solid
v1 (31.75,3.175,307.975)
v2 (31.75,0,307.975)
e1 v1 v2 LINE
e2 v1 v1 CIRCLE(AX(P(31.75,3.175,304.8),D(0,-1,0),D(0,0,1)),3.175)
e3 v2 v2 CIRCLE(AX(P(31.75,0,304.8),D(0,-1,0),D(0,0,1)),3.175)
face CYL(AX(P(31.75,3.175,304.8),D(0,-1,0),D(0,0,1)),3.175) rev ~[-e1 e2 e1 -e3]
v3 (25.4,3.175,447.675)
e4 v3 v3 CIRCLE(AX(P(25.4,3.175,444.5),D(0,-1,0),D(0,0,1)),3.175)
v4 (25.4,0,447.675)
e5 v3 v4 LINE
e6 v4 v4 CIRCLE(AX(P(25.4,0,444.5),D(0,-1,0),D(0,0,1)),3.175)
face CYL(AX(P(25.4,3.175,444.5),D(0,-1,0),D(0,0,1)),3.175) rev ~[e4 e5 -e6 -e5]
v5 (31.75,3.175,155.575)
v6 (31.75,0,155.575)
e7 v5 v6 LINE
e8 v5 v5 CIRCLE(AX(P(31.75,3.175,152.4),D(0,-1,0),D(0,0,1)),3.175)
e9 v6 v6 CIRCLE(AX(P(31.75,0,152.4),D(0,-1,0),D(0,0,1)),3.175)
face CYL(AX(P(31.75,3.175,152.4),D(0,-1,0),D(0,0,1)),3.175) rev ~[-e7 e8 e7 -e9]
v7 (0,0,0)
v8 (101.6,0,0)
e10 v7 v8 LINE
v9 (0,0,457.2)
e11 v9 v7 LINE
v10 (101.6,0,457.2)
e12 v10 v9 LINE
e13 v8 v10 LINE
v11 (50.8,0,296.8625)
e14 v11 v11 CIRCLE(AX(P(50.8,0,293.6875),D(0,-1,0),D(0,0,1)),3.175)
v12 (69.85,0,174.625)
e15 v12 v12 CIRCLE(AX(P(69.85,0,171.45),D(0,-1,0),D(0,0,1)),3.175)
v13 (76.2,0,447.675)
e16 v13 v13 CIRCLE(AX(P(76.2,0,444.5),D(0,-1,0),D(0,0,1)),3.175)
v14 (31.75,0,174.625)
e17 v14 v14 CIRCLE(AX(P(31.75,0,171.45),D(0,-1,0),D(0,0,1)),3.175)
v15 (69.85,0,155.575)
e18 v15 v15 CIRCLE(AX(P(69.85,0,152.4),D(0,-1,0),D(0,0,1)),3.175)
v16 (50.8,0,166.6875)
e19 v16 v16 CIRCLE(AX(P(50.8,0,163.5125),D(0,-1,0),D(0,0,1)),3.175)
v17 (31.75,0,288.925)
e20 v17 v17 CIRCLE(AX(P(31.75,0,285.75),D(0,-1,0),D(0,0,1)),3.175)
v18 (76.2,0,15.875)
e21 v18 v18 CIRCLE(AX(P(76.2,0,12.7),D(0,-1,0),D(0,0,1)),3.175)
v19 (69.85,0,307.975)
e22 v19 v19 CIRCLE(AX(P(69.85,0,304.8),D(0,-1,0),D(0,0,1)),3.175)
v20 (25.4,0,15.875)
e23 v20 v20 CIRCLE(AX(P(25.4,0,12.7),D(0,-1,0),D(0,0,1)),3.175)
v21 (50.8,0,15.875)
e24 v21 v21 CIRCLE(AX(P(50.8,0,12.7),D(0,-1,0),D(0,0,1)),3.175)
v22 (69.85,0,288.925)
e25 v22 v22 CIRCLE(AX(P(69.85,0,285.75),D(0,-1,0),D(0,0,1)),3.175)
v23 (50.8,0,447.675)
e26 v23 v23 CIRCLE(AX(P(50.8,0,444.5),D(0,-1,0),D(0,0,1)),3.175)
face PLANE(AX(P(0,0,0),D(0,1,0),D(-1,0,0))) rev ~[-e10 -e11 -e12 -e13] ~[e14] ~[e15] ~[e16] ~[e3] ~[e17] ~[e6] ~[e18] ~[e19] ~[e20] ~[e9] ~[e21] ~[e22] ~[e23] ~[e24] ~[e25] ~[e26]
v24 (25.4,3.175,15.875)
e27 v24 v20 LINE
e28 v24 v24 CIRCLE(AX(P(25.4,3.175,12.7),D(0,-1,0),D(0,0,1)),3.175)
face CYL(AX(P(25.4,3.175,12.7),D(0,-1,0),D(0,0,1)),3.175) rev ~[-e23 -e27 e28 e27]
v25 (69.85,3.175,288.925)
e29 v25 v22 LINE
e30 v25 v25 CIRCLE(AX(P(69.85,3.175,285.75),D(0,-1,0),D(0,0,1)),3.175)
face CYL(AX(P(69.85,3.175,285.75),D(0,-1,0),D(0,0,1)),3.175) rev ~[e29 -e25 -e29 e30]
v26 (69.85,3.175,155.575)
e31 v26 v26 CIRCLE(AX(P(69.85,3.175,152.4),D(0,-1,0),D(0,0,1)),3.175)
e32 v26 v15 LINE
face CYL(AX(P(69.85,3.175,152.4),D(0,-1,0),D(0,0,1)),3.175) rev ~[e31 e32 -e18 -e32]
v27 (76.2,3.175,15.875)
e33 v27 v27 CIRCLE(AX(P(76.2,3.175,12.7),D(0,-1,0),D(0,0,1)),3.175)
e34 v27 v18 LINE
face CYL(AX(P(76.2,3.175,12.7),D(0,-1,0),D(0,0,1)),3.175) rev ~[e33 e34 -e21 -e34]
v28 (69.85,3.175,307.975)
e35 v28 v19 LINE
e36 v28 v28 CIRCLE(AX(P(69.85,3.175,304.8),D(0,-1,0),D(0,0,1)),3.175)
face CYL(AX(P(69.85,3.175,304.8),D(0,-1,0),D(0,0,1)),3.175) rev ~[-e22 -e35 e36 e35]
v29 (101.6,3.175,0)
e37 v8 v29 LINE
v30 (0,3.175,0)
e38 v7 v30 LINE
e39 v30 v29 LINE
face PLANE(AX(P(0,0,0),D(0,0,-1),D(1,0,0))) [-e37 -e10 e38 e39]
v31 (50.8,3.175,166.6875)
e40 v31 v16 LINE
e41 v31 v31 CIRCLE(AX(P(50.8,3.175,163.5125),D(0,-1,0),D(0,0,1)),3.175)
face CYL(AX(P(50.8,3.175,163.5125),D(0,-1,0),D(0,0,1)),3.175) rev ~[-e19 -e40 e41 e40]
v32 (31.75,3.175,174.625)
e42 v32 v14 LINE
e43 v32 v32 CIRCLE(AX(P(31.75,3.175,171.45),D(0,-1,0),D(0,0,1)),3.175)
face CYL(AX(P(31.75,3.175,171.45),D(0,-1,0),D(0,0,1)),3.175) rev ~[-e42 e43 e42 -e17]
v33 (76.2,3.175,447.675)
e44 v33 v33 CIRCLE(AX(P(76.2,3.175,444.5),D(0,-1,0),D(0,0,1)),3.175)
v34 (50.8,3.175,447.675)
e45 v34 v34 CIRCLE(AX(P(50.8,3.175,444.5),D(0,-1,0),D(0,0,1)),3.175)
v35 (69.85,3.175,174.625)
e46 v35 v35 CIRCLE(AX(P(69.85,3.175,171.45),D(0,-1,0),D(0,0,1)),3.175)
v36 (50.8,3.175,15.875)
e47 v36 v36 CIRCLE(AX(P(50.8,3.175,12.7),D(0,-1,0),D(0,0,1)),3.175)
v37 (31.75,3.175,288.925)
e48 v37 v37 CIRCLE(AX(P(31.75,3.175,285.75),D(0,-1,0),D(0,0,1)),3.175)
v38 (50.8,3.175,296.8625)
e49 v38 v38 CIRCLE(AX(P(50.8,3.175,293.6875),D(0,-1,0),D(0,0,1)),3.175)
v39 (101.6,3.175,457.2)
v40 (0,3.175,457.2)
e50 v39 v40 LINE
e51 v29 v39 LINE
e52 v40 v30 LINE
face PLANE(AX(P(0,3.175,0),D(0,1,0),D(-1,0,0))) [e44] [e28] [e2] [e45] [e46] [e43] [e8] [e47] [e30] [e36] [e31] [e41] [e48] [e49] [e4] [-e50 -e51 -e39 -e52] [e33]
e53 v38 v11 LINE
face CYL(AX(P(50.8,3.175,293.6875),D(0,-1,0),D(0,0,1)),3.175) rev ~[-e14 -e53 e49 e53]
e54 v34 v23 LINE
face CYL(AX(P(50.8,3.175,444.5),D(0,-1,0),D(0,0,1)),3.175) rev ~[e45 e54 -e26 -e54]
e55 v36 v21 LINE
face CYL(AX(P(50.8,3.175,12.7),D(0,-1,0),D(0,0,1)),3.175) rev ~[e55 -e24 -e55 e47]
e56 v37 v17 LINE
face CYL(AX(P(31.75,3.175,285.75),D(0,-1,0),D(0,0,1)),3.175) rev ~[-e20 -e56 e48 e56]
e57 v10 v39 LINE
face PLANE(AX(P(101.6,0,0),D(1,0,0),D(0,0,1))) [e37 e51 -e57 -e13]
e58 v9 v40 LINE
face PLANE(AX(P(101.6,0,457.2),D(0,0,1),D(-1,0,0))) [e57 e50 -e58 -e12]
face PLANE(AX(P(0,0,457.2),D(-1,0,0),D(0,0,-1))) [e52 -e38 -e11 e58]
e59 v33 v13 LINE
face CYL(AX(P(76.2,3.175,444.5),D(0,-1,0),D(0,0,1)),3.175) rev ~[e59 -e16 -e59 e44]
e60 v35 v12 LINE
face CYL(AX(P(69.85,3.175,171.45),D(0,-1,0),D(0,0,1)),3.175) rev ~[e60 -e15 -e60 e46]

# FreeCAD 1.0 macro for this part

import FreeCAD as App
import Part
import Sketcher

V = App.Vector
Q = App.Units.Quantity


def add_polygon(sketch, points):
    """Adds a closed chain of lines whose ends are joined by coincident constraints."""
    first, n = sketch.GeometryCount, len(points)
    for a, b in zip(points, points[1:] + points[:1]):
        sketch.addGeometry(Part.LineSegment(App.Vector(*a, 0), App.Vector(*b, 0)), False)
    for i in range(n):
        sketch.addConstraint(Sketcher.Constraint("Coincident", first + i, 2, first + (i + 1) % n, 1))

doc = App.newDocument("Part")
body = doc.addObject("PartDesign::Body", "Body")

# Sketch on XZ plane
sketch1 = doc.addObject("Sketcher::SketchObject", "Sketch")
body.addObject(sketch1)
sketch1.AttachmentSupport = (doc.XZ_Plane, [""])
sketch1.MapMode = "FlatFace"
add_polygon(sketch1, [(102, 0), (0, 0), (0, 457), (102, 457)])  # lines 0-3
sketch1.addConstraint([
    Sketcher.Constraint("Horizontal", 0),
    Sketcher.Constraint("Vertical", 1),
    Sketcher.Constraint("Horizontal", 2),
    Sketcher.Constraint("Vertical", 3),
    Sketcher.Constraint("Coincident", 0, 2, -1, 1),
    Sketcher.Constraint("DistanceX", 0, 2, 0, 1, Q("4 in")),
    Sketcher.Constraint("DistanceY", 1, 1, 1, 2, Q("18 in")),
])
pad1 = doc.addObject("PartDesign::Pad", "Pad")
body.addObject(pad1)
pad1.Profile = sketch1
pad1.Length = Q("0.125 in")
pad1.Reversed = True

# Sketch on XZ plane
sketch2 = doc.addObject("Sketcher::SketchObject", "Sketch001")
body.addObject(sketch2)
sketch2.AttachmentSupport = (doc.XZ_Plane, [""])
sketch2.MapMode = "FlatFace"
sketch2.AttachmentOffset = App.Placement(V(0, 0, -0.125 * 25.4), App.Rotation())
sketch2.addGeometry([
    Part.Circle(V(25.4, 12.7, 0), V(0, 0, 1), 3.2),  # 0
    Part.Circle(V(50.8, 12.7, 0), V(0, 0, 1), 3.2),  # 1
    Part.Circle(V(76.2, 12.7, 0), V(0, 0, 1), 3.2),  # 2
    Part.Circle(V(25.4, 444.5, 0), V(0, 0, 1), 3.2),  # 3
    Part.Circle(V(76.2, 444.5, 0), V(0, 0, 1), 3.2),  # 4
    Part.Circle(V(50.8, 444.5, 0), V(0, 0, 1), 3.2),  # 5
], False)
sketch2.addConstraint([
    Sketcher.Constraint("Equal", 0, 1),
    Sketcher.Constraint("Equal", 1, 2),
    Sketcher.Constraint("Equal", 2, 3),
    Sketcher.Constraint("Equal", 3, 4),
    Sketcher.Constraint("Equal", 4, 5),
    Sketcher.Constraint("Horizontal", 0, 3, 1, 3),
    Sketcher.Constraint("Horizontal", 1, 3, 2, 3),
    Sketcher.Constraint("Horizontal", 3, 3, 4, 3),
    Sketcher.Constraint("Horizontal", 4, 3, 5, 3),
    Sketcher.Constraint("Vertical", 0, 3, 3, 3),
    Sketcher.Constraint("Vertical", 2, 3, 4, 3),
    Sketcher.Constraint("Vertical", 1, 3, 5, 3),
    Sketcher.Constraint("Diameter", 0, Q("0.25 in")),
    Sketcher.Constraint("DistanceX", -1, 1, 0, 3, Q("1 in")),
    Sketcher.Constraint("DistanceX", -1, 1, 1, 3, Q("2 in")),
    Sketcher.Constraint("DistanceX", -1, 1, 2, 3, Q("3 in")),
    Sketcher.Constraint("DistanceY", 0, 3, 3, 3, Q("17 in")),
    Sketcher.Constraint("DistanceY", -1, 1, 0, 3, Q("0.5 in")),
])
doc.recompute()
hole = doc.addObject("PartDesign::Hole", "Hole")
body.addObject(hole)
hole.Profile = sketch2
hole.ThreadType = "None"
hole.Diameter = Q("0.25 in")
hole.DepthType = "ThroughAll"
hole.Reversed = True

# Sketch on XZ plane
sketch3 = doc.addObject("Sketcher::SketchObject", "Sketch002")
body.addObject(sketch3)
sketch3.AttachmentSupport = (doc.XZ_Plane, [""])
sketch3.MapMode = "FlatFace"
sketch3.AttachmentOffset = App.Placement(V(0, 0, -0.125 * 25.4), App.Rotation())
sketch3.addGeometry([
    Part.Circle(V(69.8, 152.4, 0), V(0, 0, 1), 3.2),  # 0
    Part.Circle(V(31.8, 152.4, 0), V(0, 0, 1), 3.2),  # 1
    Part.Circle(V(31.8, 171.4, 0), V(0, 0, 1), 3.2),  # 2
    Part.Circle(V(69.8, 171.4, 0), V(0, 0, 1), 3.2),  # 3
    Part.Circle(V(31.8, 285.8, 0), V(0, 0, 1), 3.2),  # 4
    Part.Circle(V(31.8, 304.8, 0), V(0, 0, 1), 3.2),  # 5
    Part.Circle(V(69.8, 304.8, 0), V(0, 0, 1), 3.2),  # 6
    Part.Circle(V(69.8, 285.8, 0), V(0, 0, 1), 3.2),  # 7
], False)
sketch3.addConstraint([
    Sketcher.Constraint("Equal", 0, 1),
    Sketcher.Constraint("Equal", 1, 2),
    Sketcher.Constraint("Equal", 2, 3),
    Sketcher.Constraint("Equal", 3, 4),
    Sketcher.Constraint("Equal", 4, 5),
    Sketcher.Constraint("Equal", 5, 6),
    Sketcher.Constraint("Equal", 6, 7),
    Sketcher.Constraint("Horizontal", 0, 3, 1, 3),
    Sketcher.Constraint("Horizontal", 2, 3, 3, 3),
    Sketcher.Constraint("Horizontal", 5, 3, 6, 3),
    Sketcher.Constraint("Horizontal", 4, 3, 7, 3),
    Sketcher.Constraint("Vertical", 1, 3, 2, 3),
    Sketcher.Constraint("Vertical", 0, 3, 3, 3),
    Sketcher.Constraint("Vertical", 2, 3, 4, 3),
    Sketcher.Constraint("Vertical", 4, 3, 5, 3),
    Sketcher.Constraint("Vertical", 3, 3, 6, 3),
    Sketcher.Constraint("Vertical", 6, 3, 7, 3),
    Sketcher.Constraint("Diameter", 0, Q("0.25 in")),
    Sketcher.Constraint("DistanceY", -1, 1, 0, 3, Q("6 in")),
    Sketcher.Constraint("DistanceY", -1, 1, 5, 3, Q("12 in")),
    Sketcher.Constraint("DistanceX", 1, 3, 0, 3, Q("1.5 in")),
    Sketcher.Constraint("DistanceY", 2, 3, 4, 3, Q("4.5 in")),
    Sketcher.Constraint("DistanceX", -1, 1, 0, 3, Q("2.75 in")),
    Sketcher.Constraint("DistanceY", -1, 1, 2, 3, Q("6.75 in")),
])
doc.recompute()
hole2 = doc.addObject("PartDesign::Hole", "Hole001")
body.addObject(hole2)
hole2.Profile = sketch3
hole2.ThreadType = "None"
hole2.Diameter = Q("0.25 in")
hole2.DepthType = "ThroughAll"
hole2.Reversed = True

# Sketch on XZ plane
sketch4 = doc.addObject("Sketcher::SketchObject", "Sketch003")
body.addObject(sketch4)
sketch4.AttachmentSupport = (doc.XZ_Plane, [""])
sketch4.MapMode = "FlatFace"
sketch4.AttachmentOffset = App.Placement(V(0, 0, -0.125 * 25.4), App.Rotation())
sketch4.addGeometry([
    Part.Circle(V(50.8, 163.5, 0), V(0, 0, 1), 3.2),
    Part.Circle(V(50.8, 293.7, 0), V(0, 0, 1), 3.2),
], False)
sketch4.addConstraint([
    Sketcher.Constraint("Equal", 0, 1),
    Sketcher.Constraint("Vertical", 0, 3, 1, 3),
    Sketcher.Constraint("Diameter", 0, Q("0.25 in")),
    Sketcher.Constraint("DistanceX", -1, 1, 0, 3, Q("2 in")),
    Sketcher.Constraint("DistanceY", -1, 1, 0, 3, Q("6.4375 in")),
    Sketcher.Constraint("DistanceY", -1, 1, 1, 3, Q("11.5625 in")),
])
doc.recompute()
hole3 = doc.addObject("PartDesign::Hole", "Hole002")
body.addObject(hole3)
hole3.Profile = sketch4
hole3.ThreadType = "None"
hole3.Diameter = Q("0.25 in")
hole3.DepthType = "ThroughAll"
hole3.Reversed = True

doc.recompute()
